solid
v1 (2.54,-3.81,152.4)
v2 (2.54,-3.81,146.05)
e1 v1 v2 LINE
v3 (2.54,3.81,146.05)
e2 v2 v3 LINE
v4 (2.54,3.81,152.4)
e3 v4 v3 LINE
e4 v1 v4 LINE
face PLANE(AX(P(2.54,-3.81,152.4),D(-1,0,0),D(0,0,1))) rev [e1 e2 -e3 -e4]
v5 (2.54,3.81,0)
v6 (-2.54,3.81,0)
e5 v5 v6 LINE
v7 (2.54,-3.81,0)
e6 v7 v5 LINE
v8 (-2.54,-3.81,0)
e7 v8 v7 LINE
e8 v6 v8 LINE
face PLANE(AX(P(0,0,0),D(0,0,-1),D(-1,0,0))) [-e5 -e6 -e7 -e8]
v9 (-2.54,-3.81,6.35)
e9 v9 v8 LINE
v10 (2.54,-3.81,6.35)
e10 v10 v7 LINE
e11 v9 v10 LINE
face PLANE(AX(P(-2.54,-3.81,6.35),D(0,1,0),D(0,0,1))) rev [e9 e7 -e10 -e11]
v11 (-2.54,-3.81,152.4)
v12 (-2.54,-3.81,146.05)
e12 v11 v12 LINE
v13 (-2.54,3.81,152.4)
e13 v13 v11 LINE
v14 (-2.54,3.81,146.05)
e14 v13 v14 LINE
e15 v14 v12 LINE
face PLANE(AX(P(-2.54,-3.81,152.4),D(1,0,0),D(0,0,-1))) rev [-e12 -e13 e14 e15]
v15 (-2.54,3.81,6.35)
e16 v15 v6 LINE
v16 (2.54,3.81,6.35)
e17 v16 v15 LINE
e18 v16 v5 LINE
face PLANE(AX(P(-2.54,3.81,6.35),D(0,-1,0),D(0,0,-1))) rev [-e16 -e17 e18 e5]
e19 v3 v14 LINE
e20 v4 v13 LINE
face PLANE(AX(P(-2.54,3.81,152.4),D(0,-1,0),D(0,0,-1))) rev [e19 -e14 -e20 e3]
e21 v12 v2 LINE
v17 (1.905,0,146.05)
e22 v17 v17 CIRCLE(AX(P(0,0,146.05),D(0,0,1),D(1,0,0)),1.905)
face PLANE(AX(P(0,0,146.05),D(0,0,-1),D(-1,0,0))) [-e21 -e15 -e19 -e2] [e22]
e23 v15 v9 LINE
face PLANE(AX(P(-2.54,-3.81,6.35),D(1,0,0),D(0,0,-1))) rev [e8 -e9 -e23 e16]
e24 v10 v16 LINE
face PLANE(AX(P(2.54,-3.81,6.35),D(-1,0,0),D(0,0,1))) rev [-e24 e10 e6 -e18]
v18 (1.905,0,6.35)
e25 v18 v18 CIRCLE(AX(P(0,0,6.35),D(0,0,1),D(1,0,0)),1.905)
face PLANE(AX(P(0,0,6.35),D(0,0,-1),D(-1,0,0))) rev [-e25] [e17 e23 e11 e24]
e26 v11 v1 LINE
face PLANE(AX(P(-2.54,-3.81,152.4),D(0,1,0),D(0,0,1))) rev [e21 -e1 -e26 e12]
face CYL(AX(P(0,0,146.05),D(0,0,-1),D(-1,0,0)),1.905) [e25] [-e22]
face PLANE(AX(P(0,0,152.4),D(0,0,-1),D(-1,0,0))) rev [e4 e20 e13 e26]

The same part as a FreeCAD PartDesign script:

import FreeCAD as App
import Part
import Sketcher

V = App.Vector
Q = App.Units.Quantity


def add_polygon(sketch, points):
    """Adds a closed chain of lines whose ends are joined by coincident constraints."""
    first, n = sketch.GeometryCount, len(points)
    for a, b in zip(points, points[1:] + points[:1]):
        sketch.addGeometry(Part.LineSegment(App.Vector(*a, 0), App.Vector(*b, 0)), False)
    for i in range(n):
        sketch.addConstraint(Sketcher.Constraint("Coincident", first + i, 2, first + (i + 1) % n, 1))

doc = App.newDocument("Part")
body = doc.addObject("PartDesign::Body", "Body")

sketch1 = body.newObject("Sketcher::SketchObject", "Sketch")
sketch1.AttachmentSupport = (doc.getObject("XY_Plane"), [""])
sketch1.MapMode = "FlatFace"
add_polygon(sketch1, [(-3, 4), (-3, -4), (3, -4), (3, 4)])
sketch1.addConstraint(Sketcher.Constraint("Vertical", 0))
sketch1.addConstraint(Sketcher.Constraint("Horizontal", 1))
sketch1.addConstraint(Sketcher.Constraint("Vertical", 2))
sketch1.addConstraint(Sketcher.Constraint("Horizontal", 3))
sketch1.addConstraint(Sketcher.Constraint("Symmetric", 0, 2, 2, 2, -1, 1))
sketch1.addConstraint(Sketcher.Constraint("DistanceX", 1, 1, 1, 2, Q("0.2 in")))
sketch1.addConstraint(Sketcher.Constraint("DistanceY", 0, 2, 0, 1, Q("0.3 in")))
pad1 = body.newObject("PartDesign::Pad", "Pad")
pad1.Profile = sketch1
pad1.Length = Q("0.25 in")

sketch2 = body.newObject("Sketcher::SketchObject", "Sketch001")
sketch2.AttachmentSupport = (doc.getObject("XY_Plane"), [""])
sketch2.MapMode = "FlatFace"
sketch2.AttachmentOffset = App.Placement(V(0, 0, 0.25 * 25.4), App.Rotation())
sketch2.addGeometry(Part.Circle(V(0, 0, 0), V(0, 0, 1), 1.9), False)
sketch2.addConstraint(Sketcher.Constraint("Coincident", 0, 3, -1, 1))
sketch2.addConstraint(Sketcher.Constraint("Diameter", 0, Q("0.15 in")))
pad2 = body.newObject("PartDesign::Pad", "Pad001")
pad2.Profile = sketch2
pad2.Length = Q("5.5 in")

sketch3 = body.newObject("Sketcher::SketchObject", "Sketch002")
sketch3.AttachmentSupport = (doc.getObject("XY_Plane"), [""])
sketch3.MapMode = "FlatFace"
sketch3.AttachmentOffset = App.Placement(V(0, 0, 5.75 * 25.4), App.Rotation())
add_polygon(sketch3, [(-3, 4), (-3, -4), (3, -4), (3, 4)])
sketch3.addConstraint(Sketcher.Constraint("Vertical", 0))
sketch3.addConstraint(Sketcher.Constraint("Horizontal", 1))
sketch3.addConstraint(Sketcher.Constraint("Vertical", 2))
sketch3.addConstraint(Sketcher.Constraint("Horizontal", 3))
sketch3.addConstraint(Sketcher.Constraint("Symmetric", 0, 2, 2, 2, -1, 1))
sketch3.addConstraint(Sketcher.Constraint("DistanceX", 1, 1, 1, 2, Q("0.2 in")))
sketch3.addConstraint(Sketcher.Constraint("DistanceY", 0, 2, 0, 1, Q("0.3 in")))
pad3 = body.newObject("PartDesign::Pad", "Pad002")
pad3.Profile = sketch3
pad3.Length = Q("0.25 in")

doc.recompute()
